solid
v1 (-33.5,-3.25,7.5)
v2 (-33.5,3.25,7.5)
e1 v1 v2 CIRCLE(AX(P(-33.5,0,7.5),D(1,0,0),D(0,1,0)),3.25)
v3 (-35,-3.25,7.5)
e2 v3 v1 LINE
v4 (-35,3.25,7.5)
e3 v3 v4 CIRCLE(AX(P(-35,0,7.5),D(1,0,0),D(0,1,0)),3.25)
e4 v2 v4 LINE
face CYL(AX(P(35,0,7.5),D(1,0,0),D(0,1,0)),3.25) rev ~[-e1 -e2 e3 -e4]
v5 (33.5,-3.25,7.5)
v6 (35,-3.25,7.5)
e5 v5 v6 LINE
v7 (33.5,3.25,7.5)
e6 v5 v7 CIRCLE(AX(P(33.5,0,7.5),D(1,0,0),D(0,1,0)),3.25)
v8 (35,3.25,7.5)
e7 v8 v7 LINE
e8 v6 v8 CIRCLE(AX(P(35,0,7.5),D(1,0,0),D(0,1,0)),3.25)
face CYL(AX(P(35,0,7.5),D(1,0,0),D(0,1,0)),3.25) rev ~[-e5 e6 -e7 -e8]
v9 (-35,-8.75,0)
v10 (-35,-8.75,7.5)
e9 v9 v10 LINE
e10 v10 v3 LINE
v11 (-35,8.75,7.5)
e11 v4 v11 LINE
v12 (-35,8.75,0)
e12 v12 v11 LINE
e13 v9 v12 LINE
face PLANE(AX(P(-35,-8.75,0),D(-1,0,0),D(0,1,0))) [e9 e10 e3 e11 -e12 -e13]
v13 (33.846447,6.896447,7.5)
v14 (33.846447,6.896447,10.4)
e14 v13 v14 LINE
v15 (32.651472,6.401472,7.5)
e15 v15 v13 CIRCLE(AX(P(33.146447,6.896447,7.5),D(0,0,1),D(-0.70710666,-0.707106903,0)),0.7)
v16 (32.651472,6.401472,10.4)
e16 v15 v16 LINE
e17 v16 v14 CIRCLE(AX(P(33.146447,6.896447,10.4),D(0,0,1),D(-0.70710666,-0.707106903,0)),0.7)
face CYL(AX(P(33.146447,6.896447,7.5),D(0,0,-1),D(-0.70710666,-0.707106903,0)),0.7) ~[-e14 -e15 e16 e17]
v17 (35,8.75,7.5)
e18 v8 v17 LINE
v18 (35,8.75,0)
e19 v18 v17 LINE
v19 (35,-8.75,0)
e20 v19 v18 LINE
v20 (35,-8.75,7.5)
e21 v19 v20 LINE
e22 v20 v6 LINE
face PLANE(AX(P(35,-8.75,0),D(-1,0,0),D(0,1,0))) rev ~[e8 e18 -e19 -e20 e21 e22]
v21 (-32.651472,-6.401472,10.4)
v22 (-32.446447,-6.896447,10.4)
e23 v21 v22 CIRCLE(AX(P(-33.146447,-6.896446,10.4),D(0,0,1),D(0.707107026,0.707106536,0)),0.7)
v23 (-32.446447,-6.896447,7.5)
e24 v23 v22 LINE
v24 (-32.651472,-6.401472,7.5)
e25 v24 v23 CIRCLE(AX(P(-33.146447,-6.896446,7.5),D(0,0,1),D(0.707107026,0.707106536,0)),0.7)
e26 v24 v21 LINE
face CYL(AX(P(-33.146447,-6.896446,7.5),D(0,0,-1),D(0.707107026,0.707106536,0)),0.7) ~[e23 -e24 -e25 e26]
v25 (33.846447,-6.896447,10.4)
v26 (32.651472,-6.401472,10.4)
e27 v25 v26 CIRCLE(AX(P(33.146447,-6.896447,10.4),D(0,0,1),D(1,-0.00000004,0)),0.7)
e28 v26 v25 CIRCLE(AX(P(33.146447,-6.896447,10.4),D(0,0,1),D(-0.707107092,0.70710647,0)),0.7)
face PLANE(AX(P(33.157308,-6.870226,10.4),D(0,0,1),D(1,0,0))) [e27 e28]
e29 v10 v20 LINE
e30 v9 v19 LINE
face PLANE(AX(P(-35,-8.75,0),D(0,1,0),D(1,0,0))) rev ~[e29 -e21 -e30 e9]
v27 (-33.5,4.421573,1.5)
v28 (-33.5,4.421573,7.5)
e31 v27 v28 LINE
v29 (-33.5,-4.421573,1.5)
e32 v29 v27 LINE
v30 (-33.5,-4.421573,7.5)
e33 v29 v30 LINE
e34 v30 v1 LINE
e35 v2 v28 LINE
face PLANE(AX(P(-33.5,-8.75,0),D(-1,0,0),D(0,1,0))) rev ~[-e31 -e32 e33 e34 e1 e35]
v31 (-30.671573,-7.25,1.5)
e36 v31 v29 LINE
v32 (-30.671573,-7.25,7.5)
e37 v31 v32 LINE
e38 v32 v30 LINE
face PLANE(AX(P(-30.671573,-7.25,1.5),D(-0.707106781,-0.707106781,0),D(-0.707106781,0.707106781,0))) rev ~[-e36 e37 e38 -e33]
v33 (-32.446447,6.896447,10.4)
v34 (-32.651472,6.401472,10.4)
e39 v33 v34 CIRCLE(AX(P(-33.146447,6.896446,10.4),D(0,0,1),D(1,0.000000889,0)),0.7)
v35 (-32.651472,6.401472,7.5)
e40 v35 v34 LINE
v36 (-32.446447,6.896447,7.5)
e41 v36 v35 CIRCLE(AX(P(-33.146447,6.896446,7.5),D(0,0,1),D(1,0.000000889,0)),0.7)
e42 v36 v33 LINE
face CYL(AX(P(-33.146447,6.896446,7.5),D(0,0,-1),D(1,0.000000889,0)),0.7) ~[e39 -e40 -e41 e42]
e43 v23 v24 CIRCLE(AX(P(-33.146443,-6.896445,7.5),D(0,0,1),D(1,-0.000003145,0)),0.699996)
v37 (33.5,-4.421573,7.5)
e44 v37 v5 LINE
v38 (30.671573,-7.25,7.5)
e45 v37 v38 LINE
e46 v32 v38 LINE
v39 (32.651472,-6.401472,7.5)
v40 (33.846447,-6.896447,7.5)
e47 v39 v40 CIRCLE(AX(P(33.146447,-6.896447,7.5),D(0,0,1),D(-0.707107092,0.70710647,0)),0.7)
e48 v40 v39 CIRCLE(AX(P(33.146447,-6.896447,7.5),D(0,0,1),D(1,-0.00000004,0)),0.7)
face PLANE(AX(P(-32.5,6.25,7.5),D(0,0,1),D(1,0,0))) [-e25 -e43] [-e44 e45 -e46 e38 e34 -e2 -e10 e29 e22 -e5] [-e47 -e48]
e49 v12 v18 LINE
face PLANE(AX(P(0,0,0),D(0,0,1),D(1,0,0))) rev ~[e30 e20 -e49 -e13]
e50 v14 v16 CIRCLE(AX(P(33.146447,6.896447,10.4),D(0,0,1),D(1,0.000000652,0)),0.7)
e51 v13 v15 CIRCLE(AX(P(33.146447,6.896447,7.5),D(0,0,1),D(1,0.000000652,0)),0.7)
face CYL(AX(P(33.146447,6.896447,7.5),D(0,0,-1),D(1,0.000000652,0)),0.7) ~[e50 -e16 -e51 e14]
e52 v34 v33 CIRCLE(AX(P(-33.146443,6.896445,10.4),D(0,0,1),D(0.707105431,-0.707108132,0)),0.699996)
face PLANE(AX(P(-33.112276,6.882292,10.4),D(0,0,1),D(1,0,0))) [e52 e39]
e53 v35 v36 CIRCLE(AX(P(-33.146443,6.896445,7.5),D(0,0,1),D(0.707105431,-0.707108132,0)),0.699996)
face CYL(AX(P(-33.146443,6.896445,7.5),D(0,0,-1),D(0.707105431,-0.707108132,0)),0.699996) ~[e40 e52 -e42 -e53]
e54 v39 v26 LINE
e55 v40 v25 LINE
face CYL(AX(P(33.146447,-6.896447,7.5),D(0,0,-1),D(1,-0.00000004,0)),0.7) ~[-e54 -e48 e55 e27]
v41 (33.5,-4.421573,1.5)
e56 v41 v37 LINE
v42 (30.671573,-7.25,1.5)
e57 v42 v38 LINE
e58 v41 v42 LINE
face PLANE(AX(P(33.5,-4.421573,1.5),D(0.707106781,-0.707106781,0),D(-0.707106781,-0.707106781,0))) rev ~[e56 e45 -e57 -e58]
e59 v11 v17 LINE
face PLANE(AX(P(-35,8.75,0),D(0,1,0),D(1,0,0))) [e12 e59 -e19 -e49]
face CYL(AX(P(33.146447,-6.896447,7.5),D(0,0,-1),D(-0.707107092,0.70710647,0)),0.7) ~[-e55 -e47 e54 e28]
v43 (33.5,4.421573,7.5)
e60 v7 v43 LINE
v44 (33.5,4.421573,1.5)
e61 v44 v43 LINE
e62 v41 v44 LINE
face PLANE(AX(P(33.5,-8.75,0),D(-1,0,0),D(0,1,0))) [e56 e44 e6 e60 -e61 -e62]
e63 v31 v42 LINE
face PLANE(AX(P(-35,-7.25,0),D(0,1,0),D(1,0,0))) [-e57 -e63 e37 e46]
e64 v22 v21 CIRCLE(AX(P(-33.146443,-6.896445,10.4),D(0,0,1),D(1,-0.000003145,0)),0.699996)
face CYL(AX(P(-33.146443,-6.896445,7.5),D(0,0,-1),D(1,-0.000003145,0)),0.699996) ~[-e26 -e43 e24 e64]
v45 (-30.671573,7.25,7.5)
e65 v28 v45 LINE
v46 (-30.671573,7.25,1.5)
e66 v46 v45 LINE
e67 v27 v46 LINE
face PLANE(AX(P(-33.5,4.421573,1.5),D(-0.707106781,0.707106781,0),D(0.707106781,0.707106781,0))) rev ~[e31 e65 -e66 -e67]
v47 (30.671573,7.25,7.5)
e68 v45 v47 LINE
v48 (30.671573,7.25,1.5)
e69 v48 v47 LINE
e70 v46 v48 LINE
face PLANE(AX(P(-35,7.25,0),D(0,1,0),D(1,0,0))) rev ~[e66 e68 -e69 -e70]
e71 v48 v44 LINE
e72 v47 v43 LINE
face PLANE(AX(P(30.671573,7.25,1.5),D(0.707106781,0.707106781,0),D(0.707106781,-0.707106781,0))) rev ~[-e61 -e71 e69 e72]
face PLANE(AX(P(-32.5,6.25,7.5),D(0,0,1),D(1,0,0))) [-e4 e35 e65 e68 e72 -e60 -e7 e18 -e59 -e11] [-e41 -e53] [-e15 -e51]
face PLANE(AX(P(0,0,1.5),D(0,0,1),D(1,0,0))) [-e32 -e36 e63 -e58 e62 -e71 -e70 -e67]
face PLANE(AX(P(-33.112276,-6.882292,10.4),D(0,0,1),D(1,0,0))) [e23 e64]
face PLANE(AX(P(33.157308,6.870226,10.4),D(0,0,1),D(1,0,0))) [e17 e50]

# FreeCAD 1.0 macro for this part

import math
import FreeCAD as App
import Part
import Sketcher
from FreeCAD import Vector


def faces_at(feature, points):
    """Names of the faces that lie closest to the given points."""
    faces = feature.Shape.Faces
    near = lambda p: min(range(len(faces)), key=lambda i: faces[i].distToShape(Part.Vertex(*p))[0])
    return sorted({f"Face{near(p) + 1}" for p in points})

doc = App.newDocument("Part")
body = doc.addObject("PartDesign::Body", "Body")

sketch1 = body.newObject("Sketcher::SketchObject", "Sketch")
sketch1.AttachmentSupport = (doc.getObject("XY_Plane"), [""])
sketch1.MapMode = "FlatFace"
sketch1.addGeometry([
    Part.LineSegment(Vector(-35, 8.75, 0), Vector(-35, -8.75, 0)),
    Part.LineSegment(Vector(-35, -8.75, 0), Vector(35, -8.75, 0)),
    Part.LineSegment(Vector(35, -8.75, 0), Vector(35, 8.75, 0)),
    Part.LineSegment(Vector(35, 8.75, 0), Vector(-35, 8.75, 0)),
], False)
sketch1.addConstraint([
    Sketcher.Constraint("Coincident", 0, 2, 1, 1),
    Sketcher.Constraint("Coincident", 1, 2, 2, 1),
    Sketcher.Constraint("Coincident", 2, 2, 3, 1),
    Sketcher.Constraint("Coincident", 3, 2, 0, 1),
    Sketcher.Constraint("Vertical", 0),
    Sketcher.Constraint("Horizontal", 1),
    Sketcher.Constraint("Vertical", 2),
    Sketcher.Constraint("Horizontal", 3),
    Sketcher.Constraint("Symmetric", 0, 2, 2, 2, -1, 1),
    Sketcher.Constraint("DistanceX", 1, 1, 1, 2, 70.0),
    Sketcher.Constraint("DistanceY", 0, 2, 0, 1, 17.5),
])
pad1 = body.newObject("PartDesign::Pad", "Pad")
pad1.Profile = sketch1
pad1.Length = 7.5
doc.recompute()

thickness = body.newObject("PartDesign::Thickness", "Thickness")
thickness.Base = (pad1, faces_at(pad1, [(0, 0, 7.5)]))
thickness.Value = 1.5
thickness.Reversed = True
thickness.Join = "Arc"

sketch2 = body.newObject("Sketcher::SketchObject", "Sketch001")
sketch2.AttachmentSupport = (doc.getObject("XY_Plane"), [""])
sketch2.MapMode = "FlatFace"
sketch2.AttachmentOffset = App.Placement(Vector(0, 0, 1.5), App.Rotation())
sketch2.addGeometry([
    Part.LineSegment(Vector(-33.5, 7.25, 0), Vector(-33.5, 4.421573, 0)),
    Part.LineSegment(Vector(-33.5, 4.421573, 0), Vector(-30.671573, 7.25, 0)),
    Part.LineSegment(Vector(-30.671573, 7.25, 0), Vector(-33.5, 7.25, 0)),
    Part.LineSegment(Vector(30.671573, 7.25, 0), Vector(33.5, 4.421573, 0)),
    Part.LineSegment(Vector(33.5, 4.421573, 0), Vector(33.5, 7.25, 0)),
    Part.LineSegment(Vector(33.5, 7.25, 0), Vector(30.671573, 7.25, 0)),
    Part.LineSegment(Vector(33.5, -7.25, 0), Vector(33.5, -4.421573, 0)),
    Part.LineSegment(Vector(33.5, -4.421573, 0), Vector(30.671573, -7.25, 0)),
    Part.LineSegment(Vector(30.671573, -7.25, 0), Vector(33.5, -7.25, 0)),
    Part.LineSegment(Vector(-33.5, -4.421573, 0), Vector(-33.5, -7.25, 0)),
    Part.LineSegment(Vector(-33.5, -7.25, 0), Vector(-30.671573, -7.25, 0)),
    Part.LineSegment(Vector(-30.671573, -7.25, 0), Vector(-33.5, -4.421573, 0)),
], False)
sketch2.addConstraint([
    Sketcher.Constraint("Coincident", 0, 2, 1, 1),
    Sketcher.Constraint("Coincident", 1, 2, 2, 1),
    Sketcher.Constraint("Coincident", 2, 2, 0, 1),
    Sketcher.Constraint("Coincident", 3, 2, 4, 1),
    Sketcher.Constraint("Coincident", 4, 2, 5, 1),
    Sketcher.Constraint("Coincident", 5, 2, 3, 1),
    Sketcher.Constraint("Coincident", 6, 2, 7, 1),
    Sketcher.Constraint("Coincident", 7, 2, 8, 1),
    Sketcher.Constraint("Coincident", 8, 2, 6, 1),
    Sketcher.Constraint("Coincident", 9, 2, 10, 1),
    Sketcher.Constraint("Coincident", 10, 2, 11, 1),
    Sketcher.Constraint("Coincident", 11, 2, 9, 1),
    Sketcher.Constraint("Vertical", 0),
    Sketcher.Constraint("Horizontal", 2),
    Sketcher.Constraint("Vertical", 4),
    Sketcher.Constraint("Horizontal", 5),
    Sketcher.Constraint("Vertical", 6),
    Sketcher.Constraint("Horizontal", 8),
    Sketcher.Constraint("Vertical", 9),
    Sketcher.Constraint("Horizontal", 10),
    Sketcher.Constraint("Symmetric", 0, 2, 6, 2, -1, 1),
    Sketcher.Constraint("Symmetric", 1, 2, 7, 2, -1, 1),
    Sketcher.Constraint("Symmetric", 4, 2, 9, 2, -1, 1),
    Sketcher.Constraint("Symmetric", 0, 2, 3, 2, -2),
    Sketcher.Constraint("Symmetric", 1, 2, 5, 2, -2),
    Sketcher.Constraint("Perpendicular", 1, 3),
    Sketcher.Constraint("Perpendicular", 7, 11),
    Sketcher.Constraint("Horizontal", 6, 2, 11, 2),
    Sketcher.Constraint("Distance", 1, 4.0),
    Sketcher.Constraint("DistanceX", 0, 2, 3, 2, 67.0),
    Sketcher.Constraint("DistanceY", 7, 2, 5, 2, 14.5),
])
pad2 = body.newObject("PartDesign::Pad", "Pad001")
pad2.Profile = sketch2
pad2.Length = 6

sketch3 = body.newObject("Sketcher::SketchObject", "Sketch002")
sketch3.AttachmentSupport = (doc.getObject("XY_Plane"), [""])
sketch3.MapMode = "FlatFace"
sketch3.AttachmentOffset = App.Placement(Vector(0, 0, 7.5), App.Rotation())
sketch3.addGeometry([
    Part.ArcOfCircle(Part.Circle(Vector(-33.146443, 6.896445, 0), Vector(0, 0, 1), 0.699996), math.radians(-45.000109), math.radians(0.00018)),
    Part.ArcOfCircle(Part.Circle(Vector(-33.146447, 6.896446, 0), Vector(0, 0, 1), 0.7), math.radians(0.000051), math.radians(315.00002)),
    Part.ArcOfCircle(Part.Circle(Vector(-33.146447, -6.896446, 0), Vector(0, 0, 1), 0.7), math.radians(44.99998), math.radians(359.999949)),
    Part.ArcOfCircle(Part.Circle(Vector(-33.146443, -6.896445, 0), Vector(0, 0, 1), 0.699996), math.radians(-0.00018), math.radians(45.000109)),
    Part.ArcOfCircle(Part.Circle(Vector(33.146447, 6.896447, 0), Vector(0, 0, 1), 0.7), math.radians(-134.99999), math.radians(0.000002)),
    Part.ArcOfCircle(Part.Circle(Vector(33.146447, 6.896447, 0), Vector(0, 0, 1), 0.7), math.radians(0.000037), math.radians(224.999975)),
    Part.ArcOfCircle(Part.Circle(Vector(33.146447, -6.896447, 0), Vector(0, 0, 1), 0.7), math.radians(135.000025), math.radians(359.999963)),
    Part.ArcOfCircle(Part.Circle(Vector(33.146447, -6.896447, 0), Vector(0, 0, 1), 0.7), math.radians(-0.000002), math.radians(134.99999)),
], False)
sketch3.addConstraint([
    Sketcher.Constraint("Coincident", 0, 1, 1, 2),
    Sketcher.Constraint("Coincident", 1, 1, 0, 2),
    Sketcher.Constraint("Coincident", 2, 1, 3, 2),
    Sketcher.Constraint("Coincident", 3, 1, 2, 2),
    Sketcher.Constraint("Tangent", 4, 1, 5, 2),
    Sketcher.Constraint("Coincident", 5, 1, 4, 2),
    Sketcher.Constraint("Tangent", 6, 1, 7, 2),
    Sketcher.Constraint("Coincident", 7, 1, 6, 2),
    Sketcher.Constraint("Equal", 1, 2),
    Sketcher.Constraint("Equal", 0, 3),
    Sketcher.Constraint("Equal", 2, 4),
    Sketcher.Constraint("Equal", 5, 6),
    Sketcher.Constraint("Symmetric", 2, 3, 4, 3, -1, 1),
    Sketcher.Constraint("Symmetric", 0, 3, 6, 3, -1, 1),
    Sketcher.Constraint("Symmetric", 0, 1, 6, 1, -1, 1),
    Sketcher.Constraint("Symmetric", 0, 3, 4, 3, -2),
    Sketcher.Constraint("Horizontal", 5, 3, 1, 1),
    Sketcher.Constraint("Horizontal", 7, 3, 3, 1),
    Sketcher.Constraint("Horizontal", 0, 1, 4, 1),
    Sketcher.Constraint("Horizontal", 1, 1, 5, 1),
    Sketcher.Constraint("Horizontal", 2, 1, 6, 1),
    Sketcher.Constraint("Horizontal", 3, 1, 7, 1),
    Sketcher.Constraint("Radius", 1, 0.7),
    Sketcher.Constraint("DistanceX", 2, 1, -1, 1, 32.651472),
    Sketcher.Constraint("DistanceY", 2, 1, -1, 1, 6.401472),
    Sketcher.Constraint("DistanceY", 2, 3, 0, 3, 13.792891),
])
pad3 = body.newObject("PartDesign::Pad", "Pad002")
pad3.Profile = sketch3
pad3.Length = 2.9

sketch4 = body.newObject("Sketcher::SketchObject", "Sketch003")
sketch4.AttachmentSupport = (doc.getObject("YZ_Plane"), [""])
sketch4.MapMode = "FlatFace"
sketch4.AttachmentOffset = App.Placement(Vector(0, 0, 35), App.Rotation())
sketch4.addGeometry(Part.Circle(Vector(0, 7.5, 0), Vector(0, 0, 1), 3.25), False)
sketch4.addConstraint([
    Sketcher.Constraint("PointOnObject", 0, 3, -2),
    Sketcher.Constraint("Diameter", 0, 6.5),
    Sketcher.Constraint("DistanceY", -1, 1, 0, 3, 7.5),
])
pocket1 = body.newObject("PartDesign::Pocket", "Pocket")
pocket1.Profile = sketch4
pocket1.Type = "ThroughAll"

doc.recompute()
